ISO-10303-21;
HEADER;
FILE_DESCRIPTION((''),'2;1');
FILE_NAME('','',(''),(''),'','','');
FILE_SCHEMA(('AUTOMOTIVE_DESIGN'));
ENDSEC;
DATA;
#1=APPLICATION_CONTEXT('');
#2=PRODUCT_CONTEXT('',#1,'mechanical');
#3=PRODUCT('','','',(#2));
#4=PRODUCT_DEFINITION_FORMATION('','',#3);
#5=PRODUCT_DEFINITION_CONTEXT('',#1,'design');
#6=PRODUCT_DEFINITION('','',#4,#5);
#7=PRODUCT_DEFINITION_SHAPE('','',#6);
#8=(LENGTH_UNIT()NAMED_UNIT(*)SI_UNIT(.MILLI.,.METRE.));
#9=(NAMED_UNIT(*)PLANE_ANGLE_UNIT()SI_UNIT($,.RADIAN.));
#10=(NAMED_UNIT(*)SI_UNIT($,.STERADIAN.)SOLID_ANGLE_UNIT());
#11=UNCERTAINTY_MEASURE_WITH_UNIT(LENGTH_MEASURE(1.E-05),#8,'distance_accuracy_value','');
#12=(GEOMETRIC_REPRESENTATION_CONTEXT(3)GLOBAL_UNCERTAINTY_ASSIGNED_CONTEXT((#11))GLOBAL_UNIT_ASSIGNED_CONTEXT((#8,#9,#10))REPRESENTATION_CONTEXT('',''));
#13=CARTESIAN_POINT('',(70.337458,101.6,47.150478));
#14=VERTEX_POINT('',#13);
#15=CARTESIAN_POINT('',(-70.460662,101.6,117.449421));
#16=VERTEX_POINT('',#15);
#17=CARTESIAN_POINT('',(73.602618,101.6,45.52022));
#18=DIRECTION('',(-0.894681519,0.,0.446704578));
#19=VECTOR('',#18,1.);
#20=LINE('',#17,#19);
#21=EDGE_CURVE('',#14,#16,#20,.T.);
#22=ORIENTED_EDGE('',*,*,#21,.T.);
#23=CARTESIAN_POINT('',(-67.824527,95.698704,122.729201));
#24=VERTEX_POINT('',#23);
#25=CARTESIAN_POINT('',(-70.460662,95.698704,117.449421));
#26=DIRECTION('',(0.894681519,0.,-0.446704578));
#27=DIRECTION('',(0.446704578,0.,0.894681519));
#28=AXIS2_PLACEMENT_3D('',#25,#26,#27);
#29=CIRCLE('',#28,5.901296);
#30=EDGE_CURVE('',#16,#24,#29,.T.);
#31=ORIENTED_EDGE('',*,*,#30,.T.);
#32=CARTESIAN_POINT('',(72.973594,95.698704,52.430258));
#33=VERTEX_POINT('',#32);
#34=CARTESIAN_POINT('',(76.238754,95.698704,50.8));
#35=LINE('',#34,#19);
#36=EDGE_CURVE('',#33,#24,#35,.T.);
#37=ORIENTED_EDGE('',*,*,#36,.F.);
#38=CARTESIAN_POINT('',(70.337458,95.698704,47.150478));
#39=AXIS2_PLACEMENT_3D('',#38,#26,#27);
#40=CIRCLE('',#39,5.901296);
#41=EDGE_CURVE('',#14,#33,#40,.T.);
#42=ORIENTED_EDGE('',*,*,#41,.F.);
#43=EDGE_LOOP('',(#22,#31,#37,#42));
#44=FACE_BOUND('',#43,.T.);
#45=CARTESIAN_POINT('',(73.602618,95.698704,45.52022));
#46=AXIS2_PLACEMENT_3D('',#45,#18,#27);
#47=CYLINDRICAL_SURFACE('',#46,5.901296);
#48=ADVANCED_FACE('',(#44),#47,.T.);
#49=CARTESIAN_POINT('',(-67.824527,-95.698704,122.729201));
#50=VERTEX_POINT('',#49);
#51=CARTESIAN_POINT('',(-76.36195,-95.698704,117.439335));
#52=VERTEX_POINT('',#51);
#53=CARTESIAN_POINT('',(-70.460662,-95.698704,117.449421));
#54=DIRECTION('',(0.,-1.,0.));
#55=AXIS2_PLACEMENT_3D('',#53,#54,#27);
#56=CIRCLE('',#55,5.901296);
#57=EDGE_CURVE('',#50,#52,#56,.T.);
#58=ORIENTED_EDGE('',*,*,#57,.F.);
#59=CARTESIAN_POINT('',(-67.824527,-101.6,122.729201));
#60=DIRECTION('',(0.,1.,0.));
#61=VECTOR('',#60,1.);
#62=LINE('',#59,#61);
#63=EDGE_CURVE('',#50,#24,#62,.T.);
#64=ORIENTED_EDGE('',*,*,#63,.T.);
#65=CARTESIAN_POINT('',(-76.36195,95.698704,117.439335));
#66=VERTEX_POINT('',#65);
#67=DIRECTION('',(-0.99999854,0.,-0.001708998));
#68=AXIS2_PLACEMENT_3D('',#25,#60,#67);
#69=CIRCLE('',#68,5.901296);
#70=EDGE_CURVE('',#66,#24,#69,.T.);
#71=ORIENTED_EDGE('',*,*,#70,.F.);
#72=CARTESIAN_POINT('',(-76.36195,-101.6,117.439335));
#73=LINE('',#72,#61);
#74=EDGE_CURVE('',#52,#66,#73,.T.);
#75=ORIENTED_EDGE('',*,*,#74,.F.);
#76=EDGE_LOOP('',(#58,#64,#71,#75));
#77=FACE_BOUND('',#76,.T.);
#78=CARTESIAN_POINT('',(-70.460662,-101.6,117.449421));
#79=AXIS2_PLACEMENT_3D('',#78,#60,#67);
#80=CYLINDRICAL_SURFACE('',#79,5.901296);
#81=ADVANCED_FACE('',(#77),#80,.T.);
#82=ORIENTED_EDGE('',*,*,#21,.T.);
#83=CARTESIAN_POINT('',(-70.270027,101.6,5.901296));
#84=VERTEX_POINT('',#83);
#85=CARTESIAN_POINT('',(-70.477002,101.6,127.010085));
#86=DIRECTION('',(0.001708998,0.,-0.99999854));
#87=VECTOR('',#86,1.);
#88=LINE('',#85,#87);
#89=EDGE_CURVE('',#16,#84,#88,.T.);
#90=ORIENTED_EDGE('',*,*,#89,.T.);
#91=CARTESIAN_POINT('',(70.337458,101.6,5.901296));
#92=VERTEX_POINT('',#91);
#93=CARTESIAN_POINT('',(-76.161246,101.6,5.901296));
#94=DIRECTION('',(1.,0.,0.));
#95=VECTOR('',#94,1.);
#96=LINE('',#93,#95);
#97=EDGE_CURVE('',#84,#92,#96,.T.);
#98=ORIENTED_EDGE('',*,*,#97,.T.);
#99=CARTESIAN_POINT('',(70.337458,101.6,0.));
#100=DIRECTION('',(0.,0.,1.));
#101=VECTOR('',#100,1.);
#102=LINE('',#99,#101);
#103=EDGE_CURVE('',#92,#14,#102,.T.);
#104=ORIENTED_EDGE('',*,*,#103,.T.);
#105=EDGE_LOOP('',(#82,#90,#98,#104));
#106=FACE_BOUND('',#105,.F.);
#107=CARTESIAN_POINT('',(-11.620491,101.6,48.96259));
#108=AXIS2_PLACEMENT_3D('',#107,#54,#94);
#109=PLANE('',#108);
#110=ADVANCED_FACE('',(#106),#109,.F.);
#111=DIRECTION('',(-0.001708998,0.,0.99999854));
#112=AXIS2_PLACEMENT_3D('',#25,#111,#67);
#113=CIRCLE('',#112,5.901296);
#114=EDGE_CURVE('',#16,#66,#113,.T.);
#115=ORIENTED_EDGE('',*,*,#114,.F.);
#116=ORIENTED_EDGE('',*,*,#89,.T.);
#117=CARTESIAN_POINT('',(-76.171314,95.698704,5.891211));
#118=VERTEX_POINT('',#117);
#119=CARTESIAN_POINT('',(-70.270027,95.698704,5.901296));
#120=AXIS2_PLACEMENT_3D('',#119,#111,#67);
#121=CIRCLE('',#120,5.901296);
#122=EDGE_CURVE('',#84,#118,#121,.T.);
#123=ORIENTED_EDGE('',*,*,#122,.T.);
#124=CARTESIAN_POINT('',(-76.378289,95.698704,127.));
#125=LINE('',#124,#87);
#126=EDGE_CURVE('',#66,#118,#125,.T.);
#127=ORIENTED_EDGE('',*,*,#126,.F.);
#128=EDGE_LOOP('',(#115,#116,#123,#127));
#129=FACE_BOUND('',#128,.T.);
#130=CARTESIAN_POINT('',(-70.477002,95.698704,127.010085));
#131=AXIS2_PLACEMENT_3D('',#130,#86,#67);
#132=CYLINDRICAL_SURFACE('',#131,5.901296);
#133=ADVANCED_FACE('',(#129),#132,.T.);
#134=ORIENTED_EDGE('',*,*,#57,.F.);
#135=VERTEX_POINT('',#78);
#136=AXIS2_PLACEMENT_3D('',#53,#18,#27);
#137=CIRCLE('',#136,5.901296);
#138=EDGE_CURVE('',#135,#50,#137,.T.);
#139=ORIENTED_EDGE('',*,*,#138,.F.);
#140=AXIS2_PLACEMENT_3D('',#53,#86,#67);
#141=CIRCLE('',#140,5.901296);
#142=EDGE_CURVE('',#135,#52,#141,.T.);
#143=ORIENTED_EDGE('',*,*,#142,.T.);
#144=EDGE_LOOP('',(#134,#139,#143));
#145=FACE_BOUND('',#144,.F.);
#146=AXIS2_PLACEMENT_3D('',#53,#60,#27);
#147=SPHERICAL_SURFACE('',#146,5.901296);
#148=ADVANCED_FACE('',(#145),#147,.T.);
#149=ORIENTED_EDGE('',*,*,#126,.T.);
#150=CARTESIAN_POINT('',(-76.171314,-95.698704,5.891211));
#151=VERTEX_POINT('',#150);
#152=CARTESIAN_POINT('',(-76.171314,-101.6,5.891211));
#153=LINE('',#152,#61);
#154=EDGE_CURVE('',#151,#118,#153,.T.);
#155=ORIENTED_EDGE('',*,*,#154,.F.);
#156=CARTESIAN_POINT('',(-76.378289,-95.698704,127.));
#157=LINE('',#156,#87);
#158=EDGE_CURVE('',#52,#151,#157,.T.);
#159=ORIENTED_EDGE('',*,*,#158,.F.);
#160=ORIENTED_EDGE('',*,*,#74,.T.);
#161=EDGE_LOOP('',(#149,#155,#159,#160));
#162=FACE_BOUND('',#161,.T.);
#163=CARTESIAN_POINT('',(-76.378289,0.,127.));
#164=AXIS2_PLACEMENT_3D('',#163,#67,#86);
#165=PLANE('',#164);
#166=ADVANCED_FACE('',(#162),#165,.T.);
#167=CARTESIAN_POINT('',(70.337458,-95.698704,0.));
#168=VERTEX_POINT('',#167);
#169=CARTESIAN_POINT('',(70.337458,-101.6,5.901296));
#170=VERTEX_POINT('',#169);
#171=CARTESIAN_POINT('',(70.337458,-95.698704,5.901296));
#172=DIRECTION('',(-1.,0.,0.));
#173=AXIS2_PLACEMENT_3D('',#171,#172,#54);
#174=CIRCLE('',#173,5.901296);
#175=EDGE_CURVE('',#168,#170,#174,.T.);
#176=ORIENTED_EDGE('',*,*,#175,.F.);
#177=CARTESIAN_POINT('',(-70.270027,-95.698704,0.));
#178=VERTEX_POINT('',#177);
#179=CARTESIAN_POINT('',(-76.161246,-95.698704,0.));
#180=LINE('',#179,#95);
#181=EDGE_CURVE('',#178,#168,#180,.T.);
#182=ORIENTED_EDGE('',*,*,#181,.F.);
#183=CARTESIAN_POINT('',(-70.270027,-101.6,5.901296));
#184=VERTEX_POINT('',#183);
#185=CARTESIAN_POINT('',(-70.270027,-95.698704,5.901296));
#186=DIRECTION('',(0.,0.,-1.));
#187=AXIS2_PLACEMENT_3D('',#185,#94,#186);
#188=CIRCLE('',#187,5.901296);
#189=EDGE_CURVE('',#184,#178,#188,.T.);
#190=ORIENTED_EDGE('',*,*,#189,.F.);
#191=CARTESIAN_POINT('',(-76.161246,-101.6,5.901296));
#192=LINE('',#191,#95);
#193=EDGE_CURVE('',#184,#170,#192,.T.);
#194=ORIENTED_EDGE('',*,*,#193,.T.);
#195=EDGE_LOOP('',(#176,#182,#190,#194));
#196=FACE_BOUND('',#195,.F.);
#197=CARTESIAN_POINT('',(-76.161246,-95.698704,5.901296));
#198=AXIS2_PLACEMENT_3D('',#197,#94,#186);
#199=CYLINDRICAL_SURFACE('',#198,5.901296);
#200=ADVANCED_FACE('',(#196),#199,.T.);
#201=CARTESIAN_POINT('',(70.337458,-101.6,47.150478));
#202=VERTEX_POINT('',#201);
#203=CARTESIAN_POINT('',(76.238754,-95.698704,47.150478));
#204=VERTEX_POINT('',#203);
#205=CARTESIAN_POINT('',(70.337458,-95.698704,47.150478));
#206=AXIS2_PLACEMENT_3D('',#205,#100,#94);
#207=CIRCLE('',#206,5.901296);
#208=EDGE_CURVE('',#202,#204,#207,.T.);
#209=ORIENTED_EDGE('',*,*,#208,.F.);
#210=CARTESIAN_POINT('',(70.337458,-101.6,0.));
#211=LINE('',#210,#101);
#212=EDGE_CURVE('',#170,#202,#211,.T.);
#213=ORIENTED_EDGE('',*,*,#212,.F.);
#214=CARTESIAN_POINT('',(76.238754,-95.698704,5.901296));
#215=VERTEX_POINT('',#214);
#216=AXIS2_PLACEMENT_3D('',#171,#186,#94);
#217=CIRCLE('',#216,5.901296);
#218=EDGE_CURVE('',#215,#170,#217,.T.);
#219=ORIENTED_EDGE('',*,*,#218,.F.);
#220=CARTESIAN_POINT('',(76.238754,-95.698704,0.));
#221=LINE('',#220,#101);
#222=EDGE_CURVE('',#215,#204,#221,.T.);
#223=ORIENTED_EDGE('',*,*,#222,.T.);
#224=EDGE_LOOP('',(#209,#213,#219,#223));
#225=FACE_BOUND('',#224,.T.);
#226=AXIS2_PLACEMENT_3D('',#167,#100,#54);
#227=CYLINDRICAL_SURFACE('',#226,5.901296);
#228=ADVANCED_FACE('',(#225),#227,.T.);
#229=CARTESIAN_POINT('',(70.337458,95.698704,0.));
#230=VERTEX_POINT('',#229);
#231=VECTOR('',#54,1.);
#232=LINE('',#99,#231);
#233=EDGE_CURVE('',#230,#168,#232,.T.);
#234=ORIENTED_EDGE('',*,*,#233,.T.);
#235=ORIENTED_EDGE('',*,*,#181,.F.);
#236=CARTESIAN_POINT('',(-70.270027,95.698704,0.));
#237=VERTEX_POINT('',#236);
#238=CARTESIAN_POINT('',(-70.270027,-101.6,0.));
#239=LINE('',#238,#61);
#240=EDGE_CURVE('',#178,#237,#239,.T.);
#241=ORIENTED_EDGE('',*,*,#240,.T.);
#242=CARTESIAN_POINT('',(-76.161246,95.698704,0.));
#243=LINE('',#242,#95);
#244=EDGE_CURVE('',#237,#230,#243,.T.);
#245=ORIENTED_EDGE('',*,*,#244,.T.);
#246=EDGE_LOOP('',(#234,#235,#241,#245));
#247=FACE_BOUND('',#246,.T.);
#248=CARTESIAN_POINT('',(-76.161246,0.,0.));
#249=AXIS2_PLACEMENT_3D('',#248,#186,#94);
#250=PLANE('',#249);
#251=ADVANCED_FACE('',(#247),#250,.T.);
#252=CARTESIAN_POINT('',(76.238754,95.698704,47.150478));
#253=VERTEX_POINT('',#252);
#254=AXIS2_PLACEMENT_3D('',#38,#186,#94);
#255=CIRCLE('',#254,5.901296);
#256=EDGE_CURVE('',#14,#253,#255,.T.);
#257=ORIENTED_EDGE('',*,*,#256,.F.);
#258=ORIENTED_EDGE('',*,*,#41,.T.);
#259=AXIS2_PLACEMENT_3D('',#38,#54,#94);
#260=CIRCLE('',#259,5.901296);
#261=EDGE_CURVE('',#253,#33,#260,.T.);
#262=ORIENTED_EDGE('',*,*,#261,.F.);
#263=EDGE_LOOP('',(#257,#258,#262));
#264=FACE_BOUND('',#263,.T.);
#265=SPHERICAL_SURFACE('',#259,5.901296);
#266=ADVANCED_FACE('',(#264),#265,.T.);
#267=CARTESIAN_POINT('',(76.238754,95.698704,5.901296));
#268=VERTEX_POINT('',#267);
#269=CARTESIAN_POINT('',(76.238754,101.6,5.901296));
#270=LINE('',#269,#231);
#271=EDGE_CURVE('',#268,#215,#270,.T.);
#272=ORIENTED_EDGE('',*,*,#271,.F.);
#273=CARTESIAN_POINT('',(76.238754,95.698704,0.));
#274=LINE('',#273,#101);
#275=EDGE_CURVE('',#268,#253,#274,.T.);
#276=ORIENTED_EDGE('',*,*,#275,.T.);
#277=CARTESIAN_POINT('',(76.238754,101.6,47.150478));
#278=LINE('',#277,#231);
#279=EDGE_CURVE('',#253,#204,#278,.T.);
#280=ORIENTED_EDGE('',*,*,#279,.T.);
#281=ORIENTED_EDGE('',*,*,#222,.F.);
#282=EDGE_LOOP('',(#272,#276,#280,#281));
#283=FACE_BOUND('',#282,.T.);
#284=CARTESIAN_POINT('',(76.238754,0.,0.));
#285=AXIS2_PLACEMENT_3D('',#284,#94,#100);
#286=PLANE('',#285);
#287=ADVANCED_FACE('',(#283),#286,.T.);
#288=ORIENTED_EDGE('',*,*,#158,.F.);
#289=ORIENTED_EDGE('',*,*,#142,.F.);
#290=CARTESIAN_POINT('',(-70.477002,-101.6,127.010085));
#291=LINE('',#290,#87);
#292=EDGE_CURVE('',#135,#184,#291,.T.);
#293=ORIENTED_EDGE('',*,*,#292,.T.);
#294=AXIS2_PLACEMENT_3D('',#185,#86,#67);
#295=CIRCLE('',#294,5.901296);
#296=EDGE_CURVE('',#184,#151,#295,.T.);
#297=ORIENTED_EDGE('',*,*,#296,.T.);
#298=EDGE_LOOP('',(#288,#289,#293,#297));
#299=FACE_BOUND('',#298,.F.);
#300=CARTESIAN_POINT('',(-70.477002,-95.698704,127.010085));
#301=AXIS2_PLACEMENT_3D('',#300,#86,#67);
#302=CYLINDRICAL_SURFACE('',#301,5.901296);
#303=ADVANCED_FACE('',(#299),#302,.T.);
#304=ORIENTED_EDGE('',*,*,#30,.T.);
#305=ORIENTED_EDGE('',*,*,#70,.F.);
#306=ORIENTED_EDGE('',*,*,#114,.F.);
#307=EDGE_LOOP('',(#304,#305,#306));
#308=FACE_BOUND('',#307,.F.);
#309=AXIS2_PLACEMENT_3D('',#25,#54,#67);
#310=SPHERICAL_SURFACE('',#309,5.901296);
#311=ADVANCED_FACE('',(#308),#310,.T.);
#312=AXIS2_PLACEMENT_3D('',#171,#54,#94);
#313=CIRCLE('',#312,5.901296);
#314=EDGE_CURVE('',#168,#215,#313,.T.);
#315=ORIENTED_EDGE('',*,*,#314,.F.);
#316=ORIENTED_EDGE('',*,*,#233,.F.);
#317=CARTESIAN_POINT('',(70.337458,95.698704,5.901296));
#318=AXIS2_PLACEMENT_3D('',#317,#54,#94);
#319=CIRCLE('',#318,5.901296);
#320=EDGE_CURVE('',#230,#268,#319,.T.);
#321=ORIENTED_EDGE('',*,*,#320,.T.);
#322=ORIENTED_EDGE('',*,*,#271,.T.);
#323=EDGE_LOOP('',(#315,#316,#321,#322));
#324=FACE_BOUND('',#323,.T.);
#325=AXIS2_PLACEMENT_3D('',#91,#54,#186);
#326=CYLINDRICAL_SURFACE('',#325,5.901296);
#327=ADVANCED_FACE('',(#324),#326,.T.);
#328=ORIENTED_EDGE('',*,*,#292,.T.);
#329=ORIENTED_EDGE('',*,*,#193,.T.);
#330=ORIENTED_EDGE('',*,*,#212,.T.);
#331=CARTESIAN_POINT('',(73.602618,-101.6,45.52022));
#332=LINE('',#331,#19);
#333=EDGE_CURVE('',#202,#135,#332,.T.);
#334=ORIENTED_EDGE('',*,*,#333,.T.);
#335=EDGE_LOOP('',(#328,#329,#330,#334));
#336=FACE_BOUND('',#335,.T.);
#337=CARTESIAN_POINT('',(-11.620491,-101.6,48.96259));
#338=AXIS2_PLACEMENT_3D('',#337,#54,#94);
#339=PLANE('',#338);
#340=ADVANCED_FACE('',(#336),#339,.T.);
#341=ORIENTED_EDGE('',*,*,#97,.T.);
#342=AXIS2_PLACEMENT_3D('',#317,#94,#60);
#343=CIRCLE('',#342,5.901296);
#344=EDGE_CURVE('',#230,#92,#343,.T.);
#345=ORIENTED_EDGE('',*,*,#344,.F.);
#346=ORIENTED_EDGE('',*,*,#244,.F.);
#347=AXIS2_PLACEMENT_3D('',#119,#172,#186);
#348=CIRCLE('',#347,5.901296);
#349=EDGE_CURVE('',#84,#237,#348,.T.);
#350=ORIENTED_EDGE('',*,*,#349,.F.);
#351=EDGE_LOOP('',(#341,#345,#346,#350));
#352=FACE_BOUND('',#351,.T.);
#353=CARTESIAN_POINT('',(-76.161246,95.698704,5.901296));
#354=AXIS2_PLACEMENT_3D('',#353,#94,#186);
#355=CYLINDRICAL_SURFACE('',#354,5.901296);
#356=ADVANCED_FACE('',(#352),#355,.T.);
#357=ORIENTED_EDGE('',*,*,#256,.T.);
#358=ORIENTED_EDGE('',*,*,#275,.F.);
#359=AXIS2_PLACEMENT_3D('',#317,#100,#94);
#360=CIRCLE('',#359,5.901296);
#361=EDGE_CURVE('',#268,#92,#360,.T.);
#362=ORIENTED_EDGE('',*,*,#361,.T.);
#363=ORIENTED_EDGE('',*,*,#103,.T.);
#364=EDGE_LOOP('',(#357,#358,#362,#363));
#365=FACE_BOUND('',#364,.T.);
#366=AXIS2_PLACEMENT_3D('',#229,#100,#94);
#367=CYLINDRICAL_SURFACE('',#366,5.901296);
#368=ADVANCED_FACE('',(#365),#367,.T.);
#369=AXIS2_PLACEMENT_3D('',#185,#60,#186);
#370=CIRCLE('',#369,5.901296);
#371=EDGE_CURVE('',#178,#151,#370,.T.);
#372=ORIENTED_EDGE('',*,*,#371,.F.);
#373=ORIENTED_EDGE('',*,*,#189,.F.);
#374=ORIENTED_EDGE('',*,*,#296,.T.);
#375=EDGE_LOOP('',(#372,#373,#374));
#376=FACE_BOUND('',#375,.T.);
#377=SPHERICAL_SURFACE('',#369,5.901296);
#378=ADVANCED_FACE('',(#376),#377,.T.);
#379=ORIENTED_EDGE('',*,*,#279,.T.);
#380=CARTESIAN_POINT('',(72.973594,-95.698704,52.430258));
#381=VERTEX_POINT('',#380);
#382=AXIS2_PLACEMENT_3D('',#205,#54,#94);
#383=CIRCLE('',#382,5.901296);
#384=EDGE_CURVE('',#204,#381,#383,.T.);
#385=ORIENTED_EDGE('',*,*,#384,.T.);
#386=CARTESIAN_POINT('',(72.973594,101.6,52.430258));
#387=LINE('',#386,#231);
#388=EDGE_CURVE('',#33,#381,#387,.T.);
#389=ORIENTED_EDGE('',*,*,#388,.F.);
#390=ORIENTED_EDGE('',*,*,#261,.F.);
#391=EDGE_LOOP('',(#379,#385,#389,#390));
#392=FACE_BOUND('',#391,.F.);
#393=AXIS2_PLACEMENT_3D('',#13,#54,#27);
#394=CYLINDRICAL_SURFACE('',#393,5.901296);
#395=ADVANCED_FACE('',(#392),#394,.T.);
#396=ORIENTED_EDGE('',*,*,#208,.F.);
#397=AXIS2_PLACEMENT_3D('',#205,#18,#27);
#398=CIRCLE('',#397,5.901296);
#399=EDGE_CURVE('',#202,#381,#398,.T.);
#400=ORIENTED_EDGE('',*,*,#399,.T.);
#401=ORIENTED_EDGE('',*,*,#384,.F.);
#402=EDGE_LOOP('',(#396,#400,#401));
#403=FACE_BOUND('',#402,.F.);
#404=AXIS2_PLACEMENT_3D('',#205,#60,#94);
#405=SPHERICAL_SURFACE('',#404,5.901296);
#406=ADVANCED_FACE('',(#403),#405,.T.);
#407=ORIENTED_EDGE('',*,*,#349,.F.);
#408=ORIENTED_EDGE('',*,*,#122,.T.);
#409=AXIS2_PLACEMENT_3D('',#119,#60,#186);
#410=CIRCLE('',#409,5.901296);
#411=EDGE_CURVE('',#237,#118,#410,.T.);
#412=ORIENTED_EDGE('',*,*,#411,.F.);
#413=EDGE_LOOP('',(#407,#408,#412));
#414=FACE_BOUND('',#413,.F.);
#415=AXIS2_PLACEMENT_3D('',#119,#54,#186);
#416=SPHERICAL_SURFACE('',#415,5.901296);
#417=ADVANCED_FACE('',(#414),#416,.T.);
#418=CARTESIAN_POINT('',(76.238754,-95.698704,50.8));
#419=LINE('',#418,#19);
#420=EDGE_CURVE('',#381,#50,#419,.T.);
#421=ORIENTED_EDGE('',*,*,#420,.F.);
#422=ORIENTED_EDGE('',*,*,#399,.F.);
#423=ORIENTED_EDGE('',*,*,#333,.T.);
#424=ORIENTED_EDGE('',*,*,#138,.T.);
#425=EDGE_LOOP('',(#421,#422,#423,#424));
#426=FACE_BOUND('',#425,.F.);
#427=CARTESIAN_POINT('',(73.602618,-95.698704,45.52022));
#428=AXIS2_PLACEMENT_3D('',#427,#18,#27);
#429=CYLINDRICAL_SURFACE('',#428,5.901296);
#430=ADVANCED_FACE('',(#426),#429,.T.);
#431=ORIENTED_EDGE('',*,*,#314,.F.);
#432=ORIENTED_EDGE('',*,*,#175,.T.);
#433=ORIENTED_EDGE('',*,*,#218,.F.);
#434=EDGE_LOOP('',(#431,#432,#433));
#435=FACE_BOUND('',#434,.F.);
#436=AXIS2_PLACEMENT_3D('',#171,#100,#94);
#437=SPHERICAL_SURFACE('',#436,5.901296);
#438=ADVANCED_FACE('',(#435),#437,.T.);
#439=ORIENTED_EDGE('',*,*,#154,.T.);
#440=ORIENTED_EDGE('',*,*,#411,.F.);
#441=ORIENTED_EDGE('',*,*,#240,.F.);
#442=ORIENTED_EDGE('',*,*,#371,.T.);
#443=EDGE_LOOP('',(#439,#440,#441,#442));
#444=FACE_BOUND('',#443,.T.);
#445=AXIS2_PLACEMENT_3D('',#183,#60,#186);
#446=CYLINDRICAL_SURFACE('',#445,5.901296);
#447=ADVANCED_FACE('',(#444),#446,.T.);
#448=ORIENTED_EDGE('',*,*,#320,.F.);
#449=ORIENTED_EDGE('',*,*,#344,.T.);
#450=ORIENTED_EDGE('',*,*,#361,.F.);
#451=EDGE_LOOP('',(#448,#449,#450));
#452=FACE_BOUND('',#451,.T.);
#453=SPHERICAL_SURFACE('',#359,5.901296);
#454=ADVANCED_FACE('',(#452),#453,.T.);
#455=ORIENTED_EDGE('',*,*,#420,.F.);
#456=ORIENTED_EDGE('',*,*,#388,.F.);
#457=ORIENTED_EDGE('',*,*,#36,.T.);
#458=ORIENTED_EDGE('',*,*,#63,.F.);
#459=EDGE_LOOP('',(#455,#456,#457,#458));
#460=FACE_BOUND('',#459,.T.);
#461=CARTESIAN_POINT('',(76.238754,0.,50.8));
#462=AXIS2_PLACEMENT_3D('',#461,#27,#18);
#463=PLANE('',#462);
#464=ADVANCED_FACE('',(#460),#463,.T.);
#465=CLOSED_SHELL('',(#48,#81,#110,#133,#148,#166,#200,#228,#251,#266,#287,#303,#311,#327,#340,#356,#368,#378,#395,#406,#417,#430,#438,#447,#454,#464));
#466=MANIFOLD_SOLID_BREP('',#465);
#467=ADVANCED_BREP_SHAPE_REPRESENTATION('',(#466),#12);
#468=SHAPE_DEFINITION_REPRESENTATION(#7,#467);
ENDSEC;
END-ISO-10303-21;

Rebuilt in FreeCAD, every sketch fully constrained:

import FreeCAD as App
import Part
import Sketcher

V = App.Vector
Q = App.Units.Quantity

doc = App.newDocument("Part")
body = doc.addObject("PartDesign::Body", "Body")

# Sketch on XZ plane
sketch1 = body.newObject("Sketcher::SketchObject", "Sketch")
sketch1.AttachmentSupport = (doc.getObject("XZ_Plane"), [""])
sketch1.MapMode = "FlatFace"
sketch1.addGeometry([
    Part.LineSegment(V(-76.161246, 0, 0), V(76.238754, 0, 0)),
    Part.LineSegment(V(76.238754, 0, 0), V(76.238754, 50.8, 0)),
    Part.LineSegment(V(76.238754, 50.8, 0), V(-76.378289, 127, 0)),
    Part.LineSegment(V(-76.378289, 127, 0), V(-76.161246, 0, 0)),
], False)
sketch1.addConstraint([
    Sketcher.Constraint("Coincident", 0, 2, 1, 1),
    Sketcher.Constraint("Coincident", 1, 2, 2, 1),
    Sketcher.Constraint("Coincident", 2, 2, 3, 1),
    Sketcher.Constraint("Coincident", 3, 2, 0, 1),
    Sketcher.Constraint("Horizontal", 0),
    Sketcher.Constraint("Vertical", 1),
    Sketcher.Constraint("PointOnObject", 0, 2, -1),
    Sketcher.Constraint("DistanceX", 0, 1, 0, 2, Q("6 in")),
    Sketcher.Constraint("DistanceY", 1, 1, 1, 2, Q("2 in")),
    Sketcher.Constraint("DistanceY", -1, 1, 2, 2, Q("5 in")),
    Sketcher.Constraint("DistanceX", 2, 2, -1, 1, 76.378289),
    Sketcher.Constraint("Distance", 2, 170.582537),
])
pad1 = body.newObject("PartDesign::Pad", "Pad")
pad1.Profile = sketch1
pad1.Length = Q("8 in")
pad1.Midplane = True
doc.recompute()

fillet = body.newObject("PartDesign::Fillet", "Fillet")
fillet.Base = (pad1, ["Edge1"])
fillet.UseAllEdges = True
fillet.Radius = 5.901296

doc.recompute()
